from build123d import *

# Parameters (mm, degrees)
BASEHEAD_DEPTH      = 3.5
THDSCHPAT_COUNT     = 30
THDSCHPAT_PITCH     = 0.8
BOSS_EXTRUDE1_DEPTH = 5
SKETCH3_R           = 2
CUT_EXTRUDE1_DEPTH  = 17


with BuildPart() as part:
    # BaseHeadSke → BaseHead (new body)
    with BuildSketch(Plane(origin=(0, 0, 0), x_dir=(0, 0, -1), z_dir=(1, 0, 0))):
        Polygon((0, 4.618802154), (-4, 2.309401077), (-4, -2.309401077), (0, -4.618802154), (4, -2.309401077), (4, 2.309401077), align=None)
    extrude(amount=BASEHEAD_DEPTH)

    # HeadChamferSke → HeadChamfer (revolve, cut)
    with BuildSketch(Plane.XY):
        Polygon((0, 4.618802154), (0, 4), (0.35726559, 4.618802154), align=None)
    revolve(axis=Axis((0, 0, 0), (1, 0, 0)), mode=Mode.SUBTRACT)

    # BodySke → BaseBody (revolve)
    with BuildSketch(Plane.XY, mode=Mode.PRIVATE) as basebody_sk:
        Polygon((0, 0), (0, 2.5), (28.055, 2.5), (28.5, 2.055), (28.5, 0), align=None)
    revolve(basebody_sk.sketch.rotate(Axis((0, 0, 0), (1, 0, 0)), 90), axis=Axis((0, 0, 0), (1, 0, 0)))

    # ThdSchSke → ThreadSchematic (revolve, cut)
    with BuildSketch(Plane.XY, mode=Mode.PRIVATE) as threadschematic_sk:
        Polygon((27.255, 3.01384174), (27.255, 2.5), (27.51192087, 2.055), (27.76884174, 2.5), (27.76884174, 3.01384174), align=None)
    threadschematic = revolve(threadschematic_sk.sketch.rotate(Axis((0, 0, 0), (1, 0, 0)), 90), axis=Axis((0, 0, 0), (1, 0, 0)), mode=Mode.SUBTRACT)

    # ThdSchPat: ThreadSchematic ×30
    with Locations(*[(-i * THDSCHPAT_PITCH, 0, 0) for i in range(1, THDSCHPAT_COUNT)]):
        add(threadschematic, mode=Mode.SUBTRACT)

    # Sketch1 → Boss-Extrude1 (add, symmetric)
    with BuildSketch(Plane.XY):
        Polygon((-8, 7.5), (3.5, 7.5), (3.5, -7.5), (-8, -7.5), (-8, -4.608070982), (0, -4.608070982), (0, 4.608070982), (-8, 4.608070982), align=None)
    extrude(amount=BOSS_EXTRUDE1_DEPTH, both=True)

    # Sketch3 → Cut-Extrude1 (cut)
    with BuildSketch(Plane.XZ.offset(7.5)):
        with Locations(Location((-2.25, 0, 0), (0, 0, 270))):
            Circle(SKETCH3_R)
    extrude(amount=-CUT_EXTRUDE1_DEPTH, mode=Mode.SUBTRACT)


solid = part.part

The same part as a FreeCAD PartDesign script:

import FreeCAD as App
import Part
import Sketcher

V = App.Vector
Q = App.Units.Quantity


def add_polygon(sketch, points):
    """Adds a closed chain of lines whose ends are joined by coincident constraints."""
    first, n = sketch.GeometryCount, len(points)
    for a, b in zip(points, points[1:] + points[:1]):
        sketch.addGeometry(Part.LineSegment(App.Vector(*a, 0), App.Vector(*b, 0)), False)
    for i in range(n):
        sketch.addConstraint(Sketcher.Constraint("Coincident", first + i, 2, first + (i + 1) % n, 1))

doc = App.newDocument("Part")
body = doc.addObject("PartDesign::Body", "Body")

# Sketch on YZ plane
sketch1 = doc.addObject("Sketcher::SketchObject", "Sketch")
body.addObject(sketch1)
sketch1.AttachmentSupport = (doc.YZ_Plane, [""])
sketch1.MapMode = "FlatFace"
add_polygon(sketch1, [(4.6, 0), (2.3, 4), (-2.3, 4), (-4.6, 0), (-2.3, -4), (2.3, -4)])  # lines 0-5
sketch1.addConstraint(Sketcher.Constraint("Horizontal", 1))
sketch1.addConstraint(Sketcher.Constraint("Horizontal", 4))
sketch1.addConstraint(Sketcher.Constraint("Symmetric", 0, 2, 3, 2, -1, 1))
sketch1.addConstraint(Sketcher.Constraint("Symmetric", 2, 2, 5, 2, -1, 1))
sketch1.addConstraint(Sketcher.Constraint("PointOnObject", 2, 2, -1))
sketch1.addConstraint(Sketcher.Constraint("Parallel", 2, 5))
sketch1.addConstraint(Sketcher.Constraint("Vertical", 1, 2, 3, 2))
sketch1.addConstraint(Sketcher.Constraint("Angle", 0, Q("120 deg")))
sketch1.addConstraint(Sketcher.Constraint("DistanceY", -1, 1, 0, 2, 4.0))
sketch1.addConstraint(Sketcher.Constraint("DistanceX", -1, 1, 0, 2, 2.309401))
pad1 = doc.addObject("PartDesign::Pad", "Pad")
body.addObject(pad1)
pad1.Profile = sketch1
pad1.Length = 3.5

# Sketch on XY plane
sketch2 = doc.addObject("Sketcher::SketchObject", "Sketch001")
body.addObject(sketch2)
sketch2.AttachmentSupport = (doc.XY_Plane, [""])
sketch2.MapMode = "FlatFace"
add_polygon(sketch2, [(0, 4.62), (0, 4), (0.36, 4.62)])  # lines 0-2
sketch2.addConstraint(Sketcher.Constraint("Vertical", 0))
sketch2.addConstraint(Sketcher.Constraint("Horizontal", 2))
sketch2.addConstraint(Sketcher.Constraint("PointOnObject", 0, 2, -2))
sketch2.addConstraint(Sketcher.Constraint("Angle", 1, Q("60 deg")))
sketch2.addConstraint(Sketcher.Constraint("DistanceY", -1, 1, 0, 2, 4.0))
sketch2.addConstraint(Sketcher.Constraint("Distance", 1, 0.714531))
groove = doc.addObject("PartDesign::Groove", "Groove")
body.addObject(groove)
groove.Profile = sketch2
groove.ReferenceAxis = (sketch2, ["H_Axis"])
groove.Angle = 360

# Sketch on XY plane
sketch3 = doc.addObject("Sketcher::SketchObject", "Sketch002")
body.addObject(sketch3)
sketch3.AttachmentSupport = (doc.XY_Plane, [""])
sketch3.MapMode = "FlatFace"
add_polygon(sketch3, [(0, 2.5), (0, 0), (28.5, 0), (28.5, 2.1), (28.1, 2.5)])  # lines 0-4
sketch3.addConstraint(Sketcher.Constraint("Vertical", 0))
sketch3.addConstraint(Sketcher.Constraint("Horizontal", 1))
sketch3.addConstraint(Sketcher.Constraint("Vertical", 2))
sketch3.addConstraint(Sketcher.Constraint("Horizontal", 4))
sketch3.addConstraint(Sketcher.Constraint("Coincident", 0, 2, -1, 1))
sketch3.addConstraint(Sketcher.Constraint("Angle", 3, Q("135 deg")))
sketch3.addConstraint(Sketcher.Constraint("DistanceX", 1, 1, 1, 2, 28.5))
sketch3.addConstraint(Sketcher.Constraint("DistanceY", 0, 2, 0, 1, 2.5))
sketch3.addConstraint(Sketcher.Constraint("DistanceX", 4, 2, 4, 1, 28.055))
revolution = doc.addObject("PartDesign::Revolution", "Revolution")
body.addObject(revolution)
revolution.Profile = sketch3
revolution.ReferenceAxis = (sketch3, ["H_Axis"])
revolution.Angle = 360

# Sketch on XY plane
sketch4 = doc.addObject("Sketcher::SketchObject", "Sketch003")
body.addObject(sketch4)
sketch4.AttachmentSupport = (doc.XY_Plane, [""])
sketch4.MapMode = "FlatFace"
add_polygon(sketch4, [(27.3, 3), (27.3, 2.5), (27.5, 2.1), (27.8, 2.5), (27.8, 3)])  # lines 0-4
sketch4.addConstraint(Sketcher.Constraint("Vertical", 0))
sketch4.addConstraint(Sketcher.Constraint("Vertical", 3))
sketch4.addConstraint(Sketcher.Constraint("Horizontal", 4))
sketch4.addConstraint(Sketcher.Constraint("Horizontal", 0, 2, 2, 2))
sketch4.addConstraint(Sketcher.Constraint("Equal", 4, 0))
sketch4.addConstraint(Sketcher.Constraint("Equal", 1, 2))
sketch4.addConstraint(Sketcher.Constraint("Angle", 1, Q("-60 deg")))
sketch4.addConstraint(Sketcher.Constraint("DistanceY", -1, 1, 0, 2, 2.5))
sketch4.addConstraint(Sketcher.Constraint("DistanceX", -1, 1, 0, 2, 27.255))
sketch4.addConstraint(Sketcher.Constraint("DistanceY", -1, 1, 1, 2, 2.055))
groove2 = doc.addObject("PartDesign::Groove", "Groove001")
body.addObject(groove2)
groove2.Profile = sketch4
groove2.ReferenceAxis = (sketch4, ["H_Axis"])
groove2.Angle = 360
doc.recompute()

linearpattern = doc.addObject("PartDesign::LinearPattern", "LinearPattern")
body.addObject(linearpattern)
linearpattern.Originals = [groove2]
linearpattern.Direction = (doc.X_Axis, [""])
linearpattern.Mode = "offset"
linearpattern.Offset = 0.8
linearpattern.Occurrences = 30
linearpattern.Reversed = True
body.Tip = linearpattern

# Sketch on XY plane
sketch5 = doc.addObject("Sketcher::SketchObject", "Sketch004")
body.addObject(sketch5)
sketch5.AttachmentSupport = (doc.XY_Plane, [""])
sketch5.MapMode = "FlatFace"
add_polygon(sketch5, [(3.5, 7.5), (-8, 7.5), (-8, 4.6), (0, 4.6), (0, -4.6), (-8, -4.6), (-8, -7.5), (3.5, -7.5)])  # lines 0-7
sketch5.addConstraint(Sketcher.Constraint("Horizontal", 0))
sketch5.addConstraint(Sketcher.Constraint("Vertical", 1))
sketch5.addConstraint(Sketcher.Constraint("Horizontal", 2))
sketch5.addConstraint(Sketcher.Constraint("Vertical", 3))
sketch5.addConstraint(Sketcher.Constraint("Horizontal", 4))
sketch5.addConstraint(Sketcher.Constraint("Vertical", 5))
sketch5.addConstraint(Sketcher.Constraint("Horizontal", 6))
sketch5.addConstraint(Sketcher.Constraint("Vertical", 7))
sketch5.addConstraint(Sketcher.Constraint("Symmetric", 2, 2, 3, 2, -1, 1))
sketch5.addConstraint(Sketcher.Constraint("Symmetric", 0, 2, 5, 2, -1))
sketch5.addConstraint(Sketcher.Constraint("DistanceX", 2, 1, 2, 2, 8.0))
sketch5.addConstraint(Sketcher.Constraint("DistanceY", 7, 1, 7, 2, 15.0))
sketch5.addConstraint(Sketcher.Constraint("DistanceX", 0, 2, 0, 1, 11.5))
sketch5.addConstraint(Sketcher.Constraint("DistanceY", 1, 2, 1, 1, 2.891929))
pad2 = doc.addObject("PartDesign::Pad", "Pad001")
body.addObject(pad2)
pad2.Profile = sketch5
pad2.Length = 10
pad2.Midplane = True

# Sketch on XZ plane
sketch6 = doc.addObject("Sketcher::SketchObject", "Sketch005")
body.addObject(sketch6)
sketch6.AttachmentSupport = (doc.XZ_Plane, [""])
sketch6.MapMode = "FlatFace"
sketch6.AttachmentOffset = App.Placement(V(0, 0, 7.5), App.Rotation())
sketch6.addGeometry(Part.Circle(V(-2.2, 0, 0), V(0, 0, 1), 2), False)
sketch6.addConstraint(Sketcher.Constraint("PointOnObject", 0, 3, -1))
sketch6.addConstraint(Sketcher.Constraint("Diameter", 0, 4.0))
sketch6.addConstraint(Sketcher.Constraint("DistanceX", 0, 3, -1, 1, 2.25))
pocket1 = doc.addObject("PartDesign::Pocket", "Pocket")
body.addObject(pocket1)
pocket1.Profile = sketch6
pocket1.Length = 17

doc.recompute()
